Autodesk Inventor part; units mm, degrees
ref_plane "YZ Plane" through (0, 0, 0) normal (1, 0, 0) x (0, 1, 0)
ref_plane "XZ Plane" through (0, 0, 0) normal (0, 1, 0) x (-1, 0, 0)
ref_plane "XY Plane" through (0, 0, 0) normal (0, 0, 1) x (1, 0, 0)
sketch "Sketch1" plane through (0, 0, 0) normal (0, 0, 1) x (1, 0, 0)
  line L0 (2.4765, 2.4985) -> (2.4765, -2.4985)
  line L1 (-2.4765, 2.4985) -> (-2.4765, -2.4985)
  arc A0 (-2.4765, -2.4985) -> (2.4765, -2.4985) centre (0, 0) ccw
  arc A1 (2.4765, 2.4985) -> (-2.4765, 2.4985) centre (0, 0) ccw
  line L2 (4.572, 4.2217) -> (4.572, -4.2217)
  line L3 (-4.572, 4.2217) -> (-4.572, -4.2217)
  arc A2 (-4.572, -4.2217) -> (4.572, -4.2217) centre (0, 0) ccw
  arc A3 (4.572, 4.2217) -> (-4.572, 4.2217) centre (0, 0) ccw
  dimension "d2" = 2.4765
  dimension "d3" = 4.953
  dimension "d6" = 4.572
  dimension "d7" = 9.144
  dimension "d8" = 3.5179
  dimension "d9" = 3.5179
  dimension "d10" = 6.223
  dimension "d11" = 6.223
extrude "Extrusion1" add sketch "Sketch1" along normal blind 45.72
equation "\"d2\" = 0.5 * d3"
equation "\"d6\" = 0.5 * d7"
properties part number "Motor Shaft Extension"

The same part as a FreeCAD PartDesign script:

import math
import FreeCAD as App
import Part
import Sketcher
from FreeCAD import Vector
Q = App.Units.Quantity

doc = App.newDocument("Part")
params = doc.addObject("Spreadsheet::Sheet", "Params")
for row, (alias, value) in enumerate([
    ("sketch1_radius", "0.245 in"),
    ("pad1_length", "1.8 in"),
], start=1):
    params.set(f"A{row}", alias)
    params.set(f"B{row}", "=" + value)
    params.setAlias(f"B{row}", alias)

body = doc.addObject("PartDesign::Body", "Body")

# Sketch on XY plane
sketch1 = body.newObject("Sketcher::SketchObject", "Sketch")
sketch1.AttachmentSupport = (doc.getObject("XY_Plane"), [""])
sketch1.MapMode = "FlatFace"
sketch1.addGeometry([
    Part.LineSegment(Vector(4.572, -4.2217, 0), Vector(4.572, 4.2217, 0)),  # 0
    Part.ArcOfCircle(Part.Circle(Vector(0, 0, 0), Vector(0, 0, 1), 6.223017), math.radians(42.718809), math.radians(137.281191)),  # 1
    Part.LineSegment(Vector(-4.572, 4.2217, 0), Vector(-4.572, -4.2217, 0)),  # 2
    Part.ArcOfCircle(Part.Circle(Vector(0, 0, 0), Vector(0, 0, 1), 6.223017), math.radians(-137.281191), math.radians(-42.718809)),  # 3
    Part.ArcOfCircle(Part.Circle(Vector(0, 0, 0), Vector(0, 0, 1), 3.517891), math.radians(45.253367), math.radians(134.746633)),  # 4
    Part.LineSegment(Vector(2.4765, 2.4985, 0), Vector(2.4765, -2.4985, 0)),  # 5
    Part.ArcOfCircle(Part.Circle(Vector(0, 0, 0), Vector(0, 0, 1), 3.517891), math.radians(-134.746633), math.radians(-45.253367)),  # 6
    Part.LineSegment(Vector(-2.4765, -2.4985, 0), Vector(-2.4765, 2.4985, 0)),  # 7
], False)
sketch1.addConstraint([
    Sketcher.Constraint("Coincident", 0, 2, 1, 1),
    Sketcher.Constraint("Coincident", 1, 2, 2, 1),
    Sketcher.Constraint("Coincident", 2, 2, 3, 1),
    Sketcher.Constraint("Coincident", 3, 2, 0, 1),
    Sketcher.Constraint("Coincident", 4, 1, 5, 1),
    Sketcher.Constraint("Coincident", 5, 2, 6, 2),
    Sketcher.Constraint("Coincident", 6, 1, 7, 1),
    Sketcher.Constraint("Coincident", 7, 2, 4, 2),
    Sketcher.Constraint("Vertical", 0),
    Sketcher.Constraint("Vertical", 2),
    Sketcher.Constraint("Vertical", 5),
    Sketcher.Constraint("Vertical", 7),
    Sketcher.Constraint("Coincident", 1, 3, -1, 1),
    Sketcher.Constraint("Coincident", 3, 3, -1, 1),
    Sketcher.Constraint("Coincident", 4, 3, -1, 1),
    Sketcher.Constraint("Coincident", 6, 3, -1, 1),
    Sketcher.Constraint("Equal", 1, 3),
    Sketcher.Constraint("Equal", 4, 6),
    Sketcher.Constraint("Horizontal", 0, 2, 1, 2),
    Sketcher.Constraint("Horizontal", 5, 2, 6, 1),
    Sketcher.Constraint("Radius", 1, Q("0.245 in")),
    Sketcher.Constraint("Radius", 4, Q("0.1385 in")),
    Sketcher.Constraint("DistanceX", -1, 1, 0, 2, Q("0.18 in")),
    Sketcher.Constraint("DistanceX", -1, 1, 4, 1, Q("0.0975 in")),
])
sketch1.setExpression("Constraints[20]", "Params.sketch1_radius")
pad1 = body.newObject("PartDesign::Pad", "Pad")
pad1.Profile = sketch1
pad1.setExpression("Length", "Params.pad1_length")

doc.recompute()
